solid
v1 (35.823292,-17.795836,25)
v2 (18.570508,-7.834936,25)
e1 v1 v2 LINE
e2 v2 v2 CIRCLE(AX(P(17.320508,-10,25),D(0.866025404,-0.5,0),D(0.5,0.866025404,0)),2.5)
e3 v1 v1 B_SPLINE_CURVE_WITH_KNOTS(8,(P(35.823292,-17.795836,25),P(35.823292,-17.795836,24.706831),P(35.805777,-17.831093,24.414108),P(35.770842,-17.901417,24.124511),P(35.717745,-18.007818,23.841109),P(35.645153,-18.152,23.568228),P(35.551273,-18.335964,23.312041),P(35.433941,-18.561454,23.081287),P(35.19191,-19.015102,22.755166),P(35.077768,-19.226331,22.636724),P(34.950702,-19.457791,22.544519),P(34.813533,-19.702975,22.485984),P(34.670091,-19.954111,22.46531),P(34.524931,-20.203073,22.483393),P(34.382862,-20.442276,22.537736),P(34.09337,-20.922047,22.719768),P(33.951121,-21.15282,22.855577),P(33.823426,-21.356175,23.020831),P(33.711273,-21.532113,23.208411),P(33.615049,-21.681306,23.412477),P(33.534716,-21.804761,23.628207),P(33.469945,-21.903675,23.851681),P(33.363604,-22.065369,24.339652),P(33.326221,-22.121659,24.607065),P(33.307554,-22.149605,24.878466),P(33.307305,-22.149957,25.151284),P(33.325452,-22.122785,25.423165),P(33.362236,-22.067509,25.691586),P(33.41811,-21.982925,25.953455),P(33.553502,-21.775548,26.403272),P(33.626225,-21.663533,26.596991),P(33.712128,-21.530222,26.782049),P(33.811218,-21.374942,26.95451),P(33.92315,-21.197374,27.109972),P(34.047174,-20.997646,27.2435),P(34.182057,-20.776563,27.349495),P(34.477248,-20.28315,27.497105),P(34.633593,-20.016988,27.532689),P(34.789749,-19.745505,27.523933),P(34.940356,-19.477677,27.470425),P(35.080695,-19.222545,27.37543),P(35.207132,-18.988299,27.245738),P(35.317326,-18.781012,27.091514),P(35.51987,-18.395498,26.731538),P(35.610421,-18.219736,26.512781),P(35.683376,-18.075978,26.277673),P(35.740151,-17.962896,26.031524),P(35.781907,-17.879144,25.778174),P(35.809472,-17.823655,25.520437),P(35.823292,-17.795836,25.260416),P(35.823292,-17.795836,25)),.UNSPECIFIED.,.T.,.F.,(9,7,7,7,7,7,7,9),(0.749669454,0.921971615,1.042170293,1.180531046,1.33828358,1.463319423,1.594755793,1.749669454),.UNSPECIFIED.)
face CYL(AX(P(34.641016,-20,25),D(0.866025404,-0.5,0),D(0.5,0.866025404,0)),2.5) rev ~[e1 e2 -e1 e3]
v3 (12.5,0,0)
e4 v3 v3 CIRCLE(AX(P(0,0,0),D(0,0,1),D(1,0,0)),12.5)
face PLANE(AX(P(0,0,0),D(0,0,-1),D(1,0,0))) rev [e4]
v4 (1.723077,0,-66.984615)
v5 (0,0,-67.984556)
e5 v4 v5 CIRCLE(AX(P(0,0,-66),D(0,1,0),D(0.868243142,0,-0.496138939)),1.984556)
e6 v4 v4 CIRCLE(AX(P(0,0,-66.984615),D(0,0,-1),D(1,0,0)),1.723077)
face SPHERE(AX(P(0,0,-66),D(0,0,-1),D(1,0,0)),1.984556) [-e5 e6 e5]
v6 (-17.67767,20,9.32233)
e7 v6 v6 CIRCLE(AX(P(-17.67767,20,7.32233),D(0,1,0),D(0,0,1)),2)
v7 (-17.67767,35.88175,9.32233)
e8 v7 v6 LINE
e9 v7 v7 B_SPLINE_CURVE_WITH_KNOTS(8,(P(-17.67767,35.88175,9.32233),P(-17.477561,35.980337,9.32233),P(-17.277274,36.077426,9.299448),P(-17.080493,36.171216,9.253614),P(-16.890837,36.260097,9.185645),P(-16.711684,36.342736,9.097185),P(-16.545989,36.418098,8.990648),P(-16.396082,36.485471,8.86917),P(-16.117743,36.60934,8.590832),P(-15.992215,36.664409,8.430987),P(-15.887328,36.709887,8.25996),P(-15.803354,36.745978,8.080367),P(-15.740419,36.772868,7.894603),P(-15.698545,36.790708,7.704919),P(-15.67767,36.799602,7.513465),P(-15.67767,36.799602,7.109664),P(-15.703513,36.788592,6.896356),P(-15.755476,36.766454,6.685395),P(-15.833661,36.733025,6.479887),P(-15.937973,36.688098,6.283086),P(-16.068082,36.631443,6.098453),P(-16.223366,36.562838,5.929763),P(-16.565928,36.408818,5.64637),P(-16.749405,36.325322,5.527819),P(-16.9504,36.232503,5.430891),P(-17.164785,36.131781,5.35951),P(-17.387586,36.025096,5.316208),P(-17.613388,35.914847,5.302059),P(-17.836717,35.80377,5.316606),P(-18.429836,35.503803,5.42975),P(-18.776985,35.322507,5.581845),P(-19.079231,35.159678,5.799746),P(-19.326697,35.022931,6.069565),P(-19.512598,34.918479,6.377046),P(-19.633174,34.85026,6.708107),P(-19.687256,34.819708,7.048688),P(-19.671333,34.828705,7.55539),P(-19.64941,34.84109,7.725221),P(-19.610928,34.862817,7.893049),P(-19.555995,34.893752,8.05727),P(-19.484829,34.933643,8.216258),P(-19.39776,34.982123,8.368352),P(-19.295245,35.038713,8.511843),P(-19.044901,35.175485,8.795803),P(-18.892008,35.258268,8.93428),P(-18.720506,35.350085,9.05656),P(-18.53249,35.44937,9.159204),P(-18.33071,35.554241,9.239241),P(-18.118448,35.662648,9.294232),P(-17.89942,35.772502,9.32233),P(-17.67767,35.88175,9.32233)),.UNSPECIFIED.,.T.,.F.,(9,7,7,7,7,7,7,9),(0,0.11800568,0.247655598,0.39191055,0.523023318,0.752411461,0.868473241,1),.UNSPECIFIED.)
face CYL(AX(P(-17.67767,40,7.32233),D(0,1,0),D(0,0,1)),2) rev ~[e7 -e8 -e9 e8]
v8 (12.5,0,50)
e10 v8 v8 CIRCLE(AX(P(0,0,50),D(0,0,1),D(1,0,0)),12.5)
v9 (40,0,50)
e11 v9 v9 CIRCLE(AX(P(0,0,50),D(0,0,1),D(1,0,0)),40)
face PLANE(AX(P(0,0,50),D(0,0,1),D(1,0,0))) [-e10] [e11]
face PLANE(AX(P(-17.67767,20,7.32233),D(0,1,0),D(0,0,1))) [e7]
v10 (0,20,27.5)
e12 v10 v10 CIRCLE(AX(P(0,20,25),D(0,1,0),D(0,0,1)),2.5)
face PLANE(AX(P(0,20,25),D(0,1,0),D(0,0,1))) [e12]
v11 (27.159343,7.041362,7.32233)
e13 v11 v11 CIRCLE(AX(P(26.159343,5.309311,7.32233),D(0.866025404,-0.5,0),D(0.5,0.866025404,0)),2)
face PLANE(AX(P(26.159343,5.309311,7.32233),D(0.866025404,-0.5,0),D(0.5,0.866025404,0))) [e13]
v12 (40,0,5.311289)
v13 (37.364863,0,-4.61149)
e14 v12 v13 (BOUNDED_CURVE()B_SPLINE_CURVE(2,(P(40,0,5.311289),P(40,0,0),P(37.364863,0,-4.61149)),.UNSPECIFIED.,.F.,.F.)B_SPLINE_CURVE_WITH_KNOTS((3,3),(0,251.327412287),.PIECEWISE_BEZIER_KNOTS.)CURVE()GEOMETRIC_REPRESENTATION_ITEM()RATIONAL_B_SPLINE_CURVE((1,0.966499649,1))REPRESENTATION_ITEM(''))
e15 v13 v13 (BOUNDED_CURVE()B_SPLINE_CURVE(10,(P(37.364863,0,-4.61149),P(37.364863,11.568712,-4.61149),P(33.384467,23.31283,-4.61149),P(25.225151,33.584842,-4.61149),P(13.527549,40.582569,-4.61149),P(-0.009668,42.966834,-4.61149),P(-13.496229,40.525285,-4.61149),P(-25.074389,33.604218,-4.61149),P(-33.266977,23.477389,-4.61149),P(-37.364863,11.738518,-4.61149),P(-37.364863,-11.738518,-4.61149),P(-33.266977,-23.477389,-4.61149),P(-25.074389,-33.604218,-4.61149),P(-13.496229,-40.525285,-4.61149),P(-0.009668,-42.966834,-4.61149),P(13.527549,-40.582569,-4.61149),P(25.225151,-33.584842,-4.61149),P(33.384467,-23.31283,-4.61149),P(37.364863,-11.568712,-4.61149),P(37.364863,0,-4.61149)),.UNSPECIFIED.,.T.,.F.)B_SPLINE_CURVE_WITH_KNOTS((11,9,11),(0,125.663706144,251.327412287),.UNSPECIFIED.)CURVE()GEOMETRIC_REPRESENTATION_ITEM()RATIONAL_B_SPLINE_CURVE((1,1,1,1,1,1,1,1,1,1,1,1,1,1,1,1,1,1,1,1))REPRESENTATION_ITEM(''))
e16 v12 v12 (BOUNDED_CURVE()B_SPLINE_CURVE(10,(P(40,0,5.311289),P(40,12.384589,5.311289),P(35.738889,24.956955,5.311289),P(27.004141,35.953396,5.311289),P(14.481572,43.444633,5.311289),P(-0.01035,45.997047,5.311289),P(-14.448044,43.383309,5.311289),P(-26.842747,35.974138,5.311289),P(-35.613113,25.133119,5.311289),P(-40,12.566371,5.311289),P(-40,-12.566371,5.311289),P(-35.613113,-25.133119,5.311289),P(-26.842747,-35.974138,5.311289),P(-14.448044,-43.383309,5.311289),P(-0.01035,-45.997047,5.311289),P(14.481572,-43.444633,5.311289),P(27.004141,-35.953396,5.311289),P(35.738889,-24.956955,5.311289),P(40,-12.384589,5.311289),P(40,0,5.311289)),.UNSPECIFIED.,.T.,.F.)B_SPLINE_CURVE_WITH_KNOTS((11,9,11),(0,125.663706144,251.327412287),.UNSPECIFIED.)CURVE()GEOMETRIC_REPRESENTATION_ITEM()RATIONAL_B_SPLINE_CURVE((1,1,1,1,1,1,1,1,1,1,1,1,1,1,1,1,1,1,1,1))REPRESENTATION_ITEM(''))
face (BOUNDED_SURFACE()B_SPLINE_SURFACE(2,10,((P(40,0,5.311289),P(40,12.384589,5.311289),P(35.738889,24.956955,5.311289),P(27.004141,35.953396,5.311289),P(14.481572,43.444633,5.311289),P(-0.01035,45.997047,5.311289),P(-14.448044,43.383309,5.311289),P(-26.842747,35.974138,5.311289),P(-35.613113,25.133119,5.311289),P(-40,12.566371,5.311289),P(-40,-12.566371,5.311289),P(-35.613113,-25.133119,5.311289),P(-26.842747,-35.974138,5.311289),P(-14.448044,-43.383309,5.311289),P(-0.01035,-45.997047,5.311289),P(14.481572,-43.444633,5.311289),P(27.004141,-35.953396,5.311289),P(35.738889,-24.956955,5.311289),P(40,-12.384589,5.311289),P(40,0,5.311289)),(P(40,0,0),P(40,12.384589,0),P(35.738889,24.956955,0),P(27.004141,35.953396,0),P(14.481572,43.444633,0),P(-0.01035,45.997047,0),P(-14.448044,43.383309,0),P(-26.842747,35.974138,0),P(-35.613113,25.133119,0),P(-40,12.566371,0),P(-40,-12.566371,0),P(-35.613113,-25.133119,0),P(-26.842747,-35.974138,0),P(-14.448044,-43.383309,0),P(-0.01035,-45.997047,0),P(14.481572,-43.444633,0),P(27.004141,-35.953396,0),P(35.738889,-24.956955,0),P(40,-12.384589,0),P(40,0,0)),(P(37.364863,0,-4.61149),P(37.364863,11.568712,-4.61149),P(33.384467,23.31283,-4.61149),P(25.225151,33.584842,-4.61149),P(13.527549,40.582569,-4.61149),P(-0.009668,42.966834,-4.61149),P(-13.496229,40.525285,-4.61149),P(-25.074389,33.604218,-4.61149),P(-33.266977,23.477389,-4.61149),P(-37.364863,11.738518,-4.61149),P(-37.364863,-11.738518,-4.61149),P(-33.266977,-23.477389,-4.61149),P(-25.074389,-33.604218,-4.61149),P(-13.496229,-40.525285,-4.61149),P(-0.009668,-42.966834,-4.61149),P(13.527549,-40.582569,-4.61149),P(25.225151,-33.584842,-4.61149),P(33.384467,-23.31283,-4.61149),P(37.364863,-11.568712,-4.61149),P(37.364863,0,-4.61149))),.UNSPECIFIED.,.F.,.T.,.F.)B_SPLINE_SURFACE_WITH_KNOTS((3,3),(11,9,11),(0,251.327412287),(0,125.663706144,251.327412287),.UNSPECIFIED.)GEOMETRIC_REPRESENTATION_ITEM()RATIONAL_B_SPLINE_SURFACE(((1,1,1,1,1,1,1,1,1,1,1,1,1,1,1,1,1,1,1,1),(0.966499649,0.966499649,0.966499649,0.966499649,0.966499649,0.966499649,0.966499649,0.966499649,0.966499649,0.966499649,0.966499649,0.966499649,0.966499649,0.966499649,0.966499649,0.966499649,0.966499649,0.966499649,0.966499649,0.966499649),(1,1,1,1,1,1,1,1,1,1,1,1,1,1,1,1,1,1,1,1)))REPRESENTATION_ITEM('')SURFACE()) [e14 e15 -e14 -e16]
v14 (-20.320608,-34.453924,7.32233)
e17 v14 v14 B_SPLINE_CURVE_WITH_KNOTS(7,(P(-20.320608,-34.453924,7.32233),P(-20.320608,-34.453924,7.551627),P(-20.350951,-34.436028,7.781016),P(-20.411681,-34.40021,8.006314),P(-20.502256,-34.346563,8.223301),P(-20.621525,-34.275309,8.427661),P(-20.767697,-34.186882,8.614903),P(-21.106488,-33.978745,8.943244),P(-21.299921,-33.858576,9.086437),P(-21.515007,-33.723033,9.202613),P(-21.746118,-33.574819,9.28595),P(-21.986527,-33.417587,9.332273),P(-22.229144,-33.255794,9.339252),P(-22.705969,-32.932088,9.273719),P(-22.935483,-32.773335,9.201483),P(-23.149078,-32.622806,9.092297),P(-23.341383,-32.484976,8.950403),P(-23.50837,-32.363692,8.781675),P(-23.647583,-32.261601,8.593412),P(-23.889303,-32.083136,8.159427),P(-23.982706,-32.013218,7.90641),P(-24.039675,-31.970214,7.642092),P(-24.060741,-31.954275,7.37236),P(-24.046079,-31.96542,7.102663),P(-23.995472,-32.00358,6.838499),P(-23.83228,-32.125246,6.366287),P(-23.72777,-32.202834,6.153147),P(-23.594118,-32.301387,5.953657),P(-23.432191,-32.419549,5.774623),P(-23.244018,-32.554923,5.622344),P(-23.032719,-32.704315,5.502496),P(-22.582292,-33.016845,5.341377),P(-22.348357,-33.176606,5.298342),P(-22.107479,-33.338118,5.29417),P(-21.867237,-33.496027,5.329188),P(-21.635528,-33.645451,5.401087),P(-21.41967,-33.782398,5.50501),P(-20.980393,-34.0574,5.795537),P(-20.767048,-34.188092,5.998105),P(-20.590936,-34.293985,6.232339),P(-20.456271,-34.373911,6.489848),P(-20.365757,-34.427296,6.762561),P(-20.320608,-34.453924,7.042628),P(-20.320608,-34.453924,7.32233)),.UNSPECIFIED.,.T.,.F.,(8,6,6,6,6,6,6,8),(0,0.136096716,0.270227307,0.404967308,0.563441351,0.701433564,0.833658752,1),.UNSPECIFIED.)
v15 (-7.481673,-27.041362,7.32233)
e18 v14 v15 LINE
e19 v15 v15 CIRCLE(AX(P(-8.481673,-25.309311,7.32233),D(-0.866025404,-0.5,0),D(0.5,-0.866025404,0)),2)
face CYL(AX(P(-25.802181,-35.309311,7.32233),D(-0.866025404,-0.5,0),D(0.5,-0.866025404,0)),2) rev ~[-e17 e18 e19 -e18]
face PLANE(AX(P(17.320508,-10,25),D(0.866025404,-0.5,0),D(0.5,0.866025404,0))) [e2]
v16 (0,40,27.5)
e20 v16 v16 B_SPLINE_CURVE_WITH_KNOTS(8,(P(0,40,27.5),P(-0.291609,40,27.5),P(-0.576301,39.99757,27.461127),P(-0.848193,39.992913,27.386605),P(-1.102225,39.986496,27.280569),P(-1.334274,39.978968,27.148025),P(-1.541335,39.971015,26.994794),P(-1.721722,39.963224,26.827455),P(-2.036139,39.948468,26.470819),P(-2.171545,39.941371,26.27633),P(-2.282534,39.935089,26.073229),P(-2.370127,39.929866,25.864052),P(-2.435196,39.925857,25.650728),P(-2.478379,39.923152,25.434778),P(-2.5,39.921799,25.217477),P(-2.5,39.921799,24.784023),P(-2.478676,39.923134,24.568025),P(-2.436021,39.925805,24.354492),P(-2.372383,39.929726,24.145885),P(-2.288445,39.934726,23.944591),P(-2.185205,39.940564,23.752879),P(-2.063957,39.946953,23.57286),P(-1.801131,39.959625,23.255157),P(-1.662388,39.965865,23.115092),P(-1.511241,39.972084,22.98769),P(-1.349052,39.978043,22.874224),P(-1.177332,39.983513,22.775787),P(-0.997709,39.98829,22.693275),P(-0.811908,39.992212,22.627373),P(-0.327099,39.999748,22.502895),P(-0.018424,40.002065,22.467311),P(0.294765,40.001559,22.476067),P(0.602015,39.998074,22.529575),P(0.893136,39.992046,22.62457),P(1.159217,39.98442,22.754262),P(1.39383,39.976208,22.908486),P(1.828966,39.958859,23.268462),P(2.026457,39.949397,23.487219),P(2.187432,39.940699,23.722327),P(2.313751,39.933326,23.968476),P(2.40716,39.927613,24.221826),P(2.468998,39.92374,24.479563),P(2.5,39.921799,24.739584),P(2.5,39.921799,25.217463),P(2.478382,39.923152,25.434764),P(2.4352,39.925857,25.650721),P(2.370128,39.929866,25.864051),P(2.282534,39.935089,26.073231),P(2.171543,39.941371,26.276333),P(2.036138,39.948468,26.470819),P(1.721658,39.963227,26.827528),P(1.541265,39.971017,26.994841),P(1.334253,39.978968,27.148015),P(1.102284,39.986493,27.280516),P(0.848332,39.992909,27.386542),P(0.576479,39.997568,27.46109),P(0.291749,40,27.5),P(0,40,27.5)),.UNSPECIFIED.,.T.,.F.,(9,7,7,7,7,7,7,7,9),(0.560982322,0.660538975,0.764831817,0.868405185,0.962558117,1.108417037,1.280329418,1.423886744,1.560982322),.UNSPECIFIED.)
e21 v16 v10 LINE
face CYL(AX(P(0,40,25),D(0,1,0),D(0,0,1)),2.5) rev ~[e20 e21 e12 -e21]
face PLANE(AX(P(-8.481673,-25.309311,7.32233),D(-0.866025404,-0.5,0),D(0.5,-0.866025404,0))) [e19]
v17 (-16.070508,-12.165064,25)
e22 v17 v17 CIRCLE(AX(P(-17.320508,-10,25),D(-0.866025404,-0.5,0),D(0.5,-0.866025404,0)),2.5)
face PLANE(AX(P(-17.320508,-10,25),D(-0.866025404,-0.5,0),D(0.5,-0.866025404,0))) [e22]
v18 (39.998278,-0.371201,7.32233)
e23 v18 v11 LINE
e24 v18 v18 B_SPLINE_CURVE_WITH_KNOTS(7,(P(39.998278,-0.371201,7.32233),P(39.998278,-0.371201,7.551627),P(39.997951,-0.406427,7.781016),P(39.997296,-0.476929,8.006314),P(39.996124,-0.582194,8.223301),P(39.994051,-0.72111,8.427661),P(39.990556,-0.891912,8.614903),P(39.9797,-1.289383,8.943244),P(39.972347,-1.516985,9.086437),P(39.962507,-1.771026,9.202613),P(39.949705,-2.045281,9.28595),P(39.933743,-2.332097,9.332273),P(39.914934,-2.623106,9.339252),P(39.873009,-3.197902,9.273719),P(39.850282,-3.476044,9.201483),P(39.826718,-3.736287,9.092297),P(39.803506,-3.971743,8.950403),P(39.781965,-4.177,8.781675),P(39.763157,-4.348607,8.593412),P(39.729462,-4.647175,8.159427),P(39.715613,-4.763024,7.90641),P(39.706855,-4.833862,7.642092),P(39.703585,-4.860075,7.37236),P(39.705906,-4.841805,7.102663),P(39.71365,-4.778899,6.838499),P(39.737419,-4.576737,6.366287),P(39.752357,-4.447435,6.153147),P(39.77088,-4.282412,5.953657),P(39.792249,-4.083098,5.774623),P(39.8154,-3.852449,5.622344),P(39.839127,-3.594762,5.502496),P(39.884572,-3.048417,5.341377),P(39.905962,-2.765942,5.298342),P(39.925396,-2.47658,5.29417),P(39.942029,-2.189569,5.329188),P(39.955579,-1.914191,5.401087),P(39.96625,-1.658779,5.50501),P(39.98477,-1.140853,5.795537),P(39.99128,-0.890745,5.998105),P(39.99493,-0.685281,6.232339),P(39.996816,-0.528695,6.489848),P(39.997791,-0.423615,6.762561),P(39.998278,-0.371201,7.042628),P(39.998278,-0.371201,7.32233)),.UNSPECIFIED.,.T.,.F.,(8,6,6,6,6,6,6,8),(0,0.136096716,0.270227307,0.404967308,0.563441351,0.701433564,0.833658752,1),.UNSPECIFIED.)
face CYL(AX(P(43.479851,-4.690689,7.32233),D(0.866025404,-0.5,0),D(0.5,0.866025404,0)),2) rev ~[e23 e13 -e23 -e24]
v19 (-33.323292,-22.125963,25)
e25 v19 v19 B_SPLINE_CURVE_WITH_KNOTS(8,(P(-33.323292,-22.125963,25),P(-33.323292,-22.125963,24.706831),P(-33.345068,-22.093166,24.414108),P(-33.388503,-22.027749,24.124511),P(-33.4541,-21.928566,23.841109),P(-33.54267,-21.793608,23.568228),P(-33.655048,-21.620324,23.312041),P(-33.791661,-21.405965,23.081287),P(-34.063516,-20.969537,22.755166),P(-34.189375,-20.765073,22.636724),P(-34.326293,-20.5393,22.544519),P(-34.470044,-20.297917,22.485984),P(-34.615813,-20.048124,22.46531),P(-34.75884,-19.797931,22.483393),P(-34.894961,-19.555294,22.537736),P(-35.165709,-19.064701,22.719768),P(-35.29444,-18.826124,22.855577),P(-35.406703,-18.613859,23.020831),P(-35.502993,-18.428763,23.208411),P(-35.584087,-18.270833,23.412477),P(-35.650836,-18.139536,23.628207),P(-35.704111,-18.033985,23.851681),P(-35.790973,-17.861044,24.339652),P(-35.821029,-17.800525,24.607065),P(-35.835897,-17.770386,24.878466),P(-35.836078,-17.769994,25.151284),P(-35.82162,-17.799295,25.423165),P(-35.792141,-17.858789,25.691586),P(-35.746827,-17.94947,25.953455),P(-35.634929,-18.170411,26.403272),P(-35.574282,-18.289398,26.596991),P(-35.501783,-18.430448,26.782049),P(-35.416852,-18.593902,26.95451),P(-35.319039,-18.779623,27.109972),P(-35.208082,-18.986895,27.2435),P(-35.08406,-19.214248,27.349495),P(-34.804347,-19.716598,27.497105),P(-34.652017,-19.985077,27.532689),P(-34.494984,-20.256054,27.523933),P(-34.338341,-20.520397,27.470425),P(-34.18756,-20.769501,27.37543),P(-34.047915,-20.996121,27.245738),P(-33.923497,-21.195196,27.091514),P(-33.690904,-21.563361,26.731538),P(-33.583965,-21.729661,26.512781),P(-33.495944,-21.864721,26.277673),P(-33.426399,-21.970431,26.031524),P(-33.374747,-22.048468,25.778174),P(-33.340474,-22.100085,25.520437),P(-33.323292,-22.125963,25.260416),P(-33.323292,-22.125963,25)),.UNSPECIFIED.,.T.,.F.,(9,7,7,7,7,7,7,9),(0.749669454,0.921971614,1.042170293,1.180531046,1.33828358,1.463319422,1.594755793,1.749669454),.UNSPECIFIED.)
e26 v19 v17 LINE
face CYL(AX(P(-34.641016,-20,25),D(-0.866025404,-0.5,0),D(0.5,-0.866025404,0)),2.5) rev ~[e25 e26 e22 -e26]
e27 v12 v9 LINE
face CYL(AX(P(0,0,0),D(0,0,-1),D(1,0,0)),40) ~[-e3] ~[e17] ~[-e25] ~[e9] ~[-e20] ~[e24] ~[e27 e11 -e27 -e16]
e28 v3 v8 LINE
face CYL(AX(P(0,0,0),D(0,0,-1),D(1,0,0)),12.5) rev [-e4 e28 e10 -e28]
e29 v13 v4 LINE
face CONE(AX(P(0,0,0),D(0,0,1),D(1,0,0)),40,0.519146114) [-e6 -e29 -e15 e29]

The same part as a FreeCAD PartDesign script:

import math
import FreeCAD as App
import Part
import Sketcher


def edges_at(feature, points):
    """Names of the edges that pass closest to the given points."""
    edges = feature.Shape.Edges
    near = lambda p: min(range(len(edges)), key=lambda i: edges[i].distToShape(Part.Vertex(*p))[0])
    return sorted({f"Edge{near(p) + 1}" for p in points})

doc = App.newDocument("Part")
body = doc.addObject("PartDesign::Body", "Body")

# Sketch on XY plane
sketch1 = body.newObject("Sketcher::SketchObject", "Sketch")
sketch1.AttachmentSupport = (doc.getObject("XY_Plane"), [""])
sketch1.MapMode = "FlatFace"
sketch1.addGeometry([
    Part.Circle(App.Vector(0, 0, 0), App.Vector(0, 0, 1), 40),
    Part.Circle(App.Vector(0, 0, 0), App.Vector(0, 0, 1), 12),
], False)
sketch1.addConstraint([
    Sketcher.Constraint("Coincident", 0, 3, -1, 1),
    Sketcher.Constraint("Coincident", 1, 3, -1, 1),
    Sketcher.Constraint("Diameter", 0, 80.0),
    Sketcher.Constraint("Diameter", 1, 25.0),
])
pad1 = body.newObject("PartDesign::Pad", "Pad")
pad1.Profile = sketch1
pad1.Length = 50

# Sketch on an angled plane
sketch2 = body.newObject("Sketcher::SketchObject", "Sketch001")
sketch2.Placement = App.Placement(App.Vector(34.641016, -20, 0), App.Rotation(App.Vector(0, 0, -1), App.Vector(0.5, 0.866025404, 0), App.Vector(0.866025404, -0.5, 0), "ZXY"))
sketch2.addGeometry(Part.Circle(App.Vector(-25, 0, 0), App.Vector(0, 0, 1), 2.5), False)
sketch2.addConstraint([
    Sketcher.Constraint("PointOnObject", 0, 3, -1),
    Sketcher.Constraint("Diameter", 0, 5.0),
    Sketcher.Constraint("DistanceX", 0, 3, -1, 1, 25.0),
])
pocket1 = body.newObject("PartDesign::Pocket", "Pocket")
pocket1.Profile = sketch2
pocket1.Length = 20

# Sketch on XZ plane
sketch3 = body.newObject("Sketcher::SketchObject", "Sketch002")
sketch3.AttachmentSupport = (doc.getObject("XZ_Plane"), [""])
sketch3.MapMode = "FlatFace"
sketch3.AttachmentOffset = App.Placement(App.Vector(0, 0, -40), App.Rotation())
sketch3.addGeometry(Part.Circle(App.Vector(0, 25, 0), App.Vector(0, 0, 1), 2.5), False)
sketch3.addConstraint([
    Sketcher.Constraint("PointOnObject", 0, 3, -2),
    Sketcher.Constraint("Diameter", 0, 5.0),
    Sketcher.Constraint("DistanceY", -1, 1, 0, 3, 25.0),
])
pocket2 = body.newObject("PartDesign::Pocket", "Pocket001")
pocket2.Profile = sketch3
pocket2.Length = 20
pocket2.Reversed = True

# Sketch on an angled plane
sketch4 = body.newObject("Sketcher::SketchObject", "Sketch003")
sketch4.Placement = App.Placement(App.Vector(-34.641016, -20, 0), App.Rotation(App.Vector(0, 0, -1), App.Vector(0.5, -0.866025404, 0), App.Vector(-0.866025404, -0.5, 0), "ZXY"))
sketch4.addGeometry(Part.Circle(App.Vector(-25, 0, 0), App.Vector(0, 0, 1), 2.5), False)
sketch4.addConstraint([
    Sketcher.Constraint("PointOnObject", 0, 3, -1),
    Sketcher.Constraint("Diameter", 0, 5.0),
    Sketcher.Constraint("DistanceX", 0, 3, -1, 1, 25.0),
])
pocket3 = body.newObject("PartDesign::Pocket", "Pocket002")
pocket3.Profile = sketch4
pocket3.Length = 20

# Sketch on an angled plane
sketch5 = body.newObject("Sketcher::SketchObject", "Sketch004")
sketch5.Placement = App.Placement(App.Vector(-34.641016, -20, 0), App.Rotation(App.Vector(0, 0, -1), App.Vector(0.5, -0.866025404, 0), App.Vector(-0.866025404, -0.5, 0), "ZXY"))
sketch5.addGeometry(Part.Circle(App.Vector(-7.3, 17.7, 0), App.Vector(0, 0, 1), 2), False)
sketch5.addConstraint([
    Sketcher.Constraint("Diameter", 0, 4.0),
    Sketcher.Constraint("DistanceX", 0, 3, -1, 1, 7.32233),
    Sketcher.Constraint("DistanceY", -1, 1, 0, 3, 17.67767),
])
pocket4 = body.newObject("PartDesign::Pocket", "Pocket003")
pocket4.Profile = sketch5
pocket4.Length = 20

# Sketch on an angled plane
sketch6 = body.newObject("Sketcher::SketchObject", "Sketch005")
sketch6.Placement = App.Placement(App.Vector(34.641016, -20, 0), App.Rotation(App.Vector(0, 0, -1), App.Vector(0.5, 0.866025404, 0), App.Vector(0.866025404, -0.5, 0), "ZXY"))
sketch6.addGeometry(Part.Circle(App.Vector(-7.3, 17.7, 0), App.Vector(0, 0, 1), 2), False)
sketch6.addConstraint([
    Sketcher.Constraint("Diameter", 0, 4.0),
    Sketcher.Constraint("DistanceX", 0, 3, -1, 1, 7.32233),
    Sketcher.Constraint("DistanceY", -1, 1, 0, 3, 17.67767),
])
pocket5 = body.newObject("PartDesign::Pocket", "Pocket004")
pocket5.Profile = sketch6
pocket5.Length = 20

# Sketch on XZ plane
sketch7 = body.newObject("Sketcher::SketchObject", "Sketch006")
sketch7.AttachmentSupport = (doc.getObject("XZ_Plane"), [""])
sketch7.MapMode = "FlatFace"
sketch7.AttachmentOffset = App.Placement(App.Vector(0, 0, -40), App.Rotation())
sketch7.addGeometry(Part.Circle(App.Vector(-17.7, 7.3, 0), App.Vector(0, 0, 1), 2), False)
sketch7.addConstraint([
    Sketcher.Constraint("Diameter", 0, 4.0),
    Sketcher.Constraint("DistanceX", 0, 3, -1, 1, 17.67767),
    Sketcher.Constraint("DistanceY", -1, 1, 0, 3, 7.32233),
])
pocket6 = body.newObject("PartDesign::Pocket", "Pocket005")
pocket6.Profile = sketch7
pocket6.Length = 20
pocket6.Reversed = True

# Sketch on XZ plane
sketch8 = body.newObject("Sketcher::SketchObject", "Sketch007")
sketch8.AttachmentSupport = (doc.getObject("XZ_Plane"), [""])
sketch8.MapMode = "FlatFace"
sketch8.addGeometry([
    Part.LineSegment(App.Vector(0, 0, 0), App.Vector(40, 0, 0)),
    Part.LineSegment(App.Vector(40, 0, 0), App.Vector(1.7, -67, 0)),
    Part.ArcOfCircle(Part.Circle(App.Vector(0, -66, 0), App.Vector(0, 0, 1), 2), math.radians(-90), math.radians(-30)),
    Part.LineSegment(App.Vector(0, -68, 0), App.Vector(0, 0, 0)),
], False)
sketch8.addConstraint([
    Sketcher.Constraint("Coincident", 0, 2, 1, 1),
    Sketcher.Constraint("Tangent", 1, 2, 2, 2),
    Sketcher.Constraint("Coincident", 2, 1, 3, 1),
    Sketcher.Constraint("Coincident", 3, 2, 0, 1),
    Sketcher.Constraint("Horizontal", 0),
    Sketcher.Constraint("Vertical", 3),
    Sketcher.Constraint("Coincident", 3, 2, -1, 1),
    Sketcher.Constraint("PointOnObject", 2, 3, -2),
    Sketcher.Constraint("DistanceX", 0, 1, 0, 2, 40.0),
    Sketcher.Constraint("DistanceY", 2, 3, -1, 1, 66.0),
    Sketcher.Constraint("Radius", 2, 1.984556),
])
revolution = body.newObject("PartDesign::Revolution", "Revolution")
revolution.Profile = sketch8
revolution.ReferenceAxis = (sketch8, ["V_Axis"])
revolution.Angle = 360
doc.recompute()

fillet = body.newObject("PartDesign::Fillet", "Fillet")
fillet.Base = (revolution, edges_at(revolution, [(-40, 0, 0)]))
fillet.Radius = 20

doc.recompute()
